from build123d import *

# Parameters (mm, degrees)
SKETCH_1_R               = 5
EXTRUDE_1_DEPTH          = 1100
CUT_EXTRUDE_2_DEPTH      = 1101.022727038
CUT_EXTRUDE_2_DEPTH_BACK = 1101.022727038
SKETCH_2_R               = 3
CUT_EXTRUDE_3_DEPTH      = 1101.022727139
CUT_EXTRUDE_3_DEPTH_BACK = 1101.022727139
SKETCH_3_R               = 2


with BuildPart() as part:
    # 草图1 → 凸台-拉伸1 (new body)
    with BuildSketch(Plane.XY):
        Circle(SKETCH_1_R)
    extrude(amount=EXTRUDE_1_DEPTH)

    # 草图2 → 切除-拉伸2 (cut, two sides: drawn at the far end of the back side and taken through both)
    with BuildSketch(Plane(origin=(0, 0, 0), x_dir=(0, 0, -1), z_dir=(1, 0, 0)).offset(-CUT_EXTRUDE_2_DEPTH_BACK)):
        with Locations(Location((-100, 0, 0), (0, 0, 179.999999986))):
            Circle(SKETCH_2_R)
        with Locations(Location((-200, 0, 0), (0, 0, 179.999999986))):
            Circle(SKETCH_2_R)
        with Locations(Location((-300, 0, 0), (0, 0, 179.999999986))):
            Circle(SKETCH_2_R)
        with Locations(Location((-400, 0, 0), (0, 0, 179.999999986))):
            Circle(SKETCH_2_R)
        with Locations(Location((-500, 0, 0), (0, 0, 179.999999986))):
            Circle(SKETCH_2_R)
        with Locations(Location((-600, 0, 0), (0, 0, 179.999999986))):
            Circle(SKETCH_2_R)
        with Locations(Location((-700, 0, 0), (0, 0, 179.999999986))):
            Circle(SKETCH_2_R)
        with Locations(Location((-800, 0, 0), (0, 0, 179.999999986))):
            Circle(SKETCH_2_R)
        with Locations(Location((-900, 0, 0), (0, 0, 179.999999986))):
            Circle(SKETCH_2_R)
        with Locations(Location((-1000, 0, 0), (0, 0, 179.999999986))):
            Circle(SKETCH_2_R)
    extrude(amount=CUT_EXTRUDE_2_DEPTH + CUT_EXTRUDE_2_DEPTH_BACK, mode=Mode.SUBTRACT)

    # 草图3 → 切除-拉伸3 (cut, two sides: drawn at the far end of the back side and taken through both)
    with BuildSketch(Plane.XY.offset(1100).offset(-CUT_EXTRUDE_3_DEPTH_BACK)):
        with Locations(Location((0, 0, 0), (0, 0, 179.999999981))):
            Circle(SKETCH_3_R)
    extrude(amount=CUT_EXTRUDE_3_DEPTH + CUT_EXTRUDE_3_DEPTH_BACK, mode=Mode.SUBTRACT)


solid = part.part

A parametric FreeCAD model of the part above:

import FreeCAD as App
import Part
import Sketcher

V = App.Vector
Q = App.Units.Quantity

doc = App.newDocument("Part")
body = doc.addObject("PartDesign::Body", "Body")

sketch1 = body.newObject("Sketcher::SketchObject", "Sketch")
sketch1.AttachmentSupport = (doc.getObject("XY_Plane"), [""])
sketch1.MapMode = "FlatFace"
sketch1.addGeometry(Part.Circle(V(0, 0, 0), V(0, 0, 1), 5), False)
sketch1.addConstraint([
    Sketcher.Constraint("Coincident", 0, 3, -1, 1),
    Sketcher.Constraint("Diameter", 0, Q("10 mm")),
])
pad1 = body.newObject("PartDesign::Pad", "Pad")
pad1.Profile = sketch1
pad1.Length = 1100

sketch2 = body.newObject("Sketcher::SketchObject", "Sketch001")
sketch2.AttachmentSupport = (doc.getObject("YZ_Plane"), [""])
sketch2.MapMode = "FlatFace"
sketch2.addGeometry([
    Part.Circle(V(0, 100, 0), V(0, 0, 1), 3),
    Part.Circle(V(0, 200, 0), V(0, 0, 1), 3),
    Part.Circle(V(0, 300, 0), V(0, 0, 1), 3),
    Part.Circle(V(0, 400, 0), V(0, 0, 1), 3),
    Part.Circle(V(0, 500, 0), V(0, 0, 1), 3),
    Part.Circle(V(0, 600, 0), V(0, 0, 1), 3),
    Part.Circle(V(0, 700, 0), V(0, 0, 1), 3),
    Part.Circle(V(0, 800, 0), V(0, 0, 1), 3),
    Part.Circle(V(0, 900, 0), V(0, 0, 1), 3),
    Part.Circle(V(0, 1000, 0), V(0, 0, 1), 3),
], False)
sketch2.addConstraint([
    Sketcher.Constraint("Equal", 0, 1),
    Sketcher.Constraint("Equal", 1, 2),
    Sketcher.Constraint("Equal", 2, 3),
    Sketcher.Constraint("Equal", 3, 4),
    Sketcher.Constraint("Equal", 4, 5),
    Sketcher.Constraint("Equal", 5, 6),
    Sketcher.Constraint("Equal", 6, 7),
    Sketcher.Constraint("Equal", 7, 8),
    Sketcher.Constraint("Equal", 8, 9),
    Sketcher.Constraint("PointOnObject", 0, 3, -2),
    Sketcher.Constraint("PointOnObject", 1, 3, -2),
    Sketcher.Constraint("PointOnObject", 2, 3, -2),
    Sketcher.Constraint("PointOnObject", 3, 3, -2),
    Sketcher.Constraint("PointOnObject", 4, 3, -2),
    Sketcher.Constraint("PointOnObject", 5, 3, -2),
    Sketcher.Constraint("PointOnObject", 6, 3, -2),
    Sketcher.Constraint("PointOnObject", 7, 3, -2),
    Sketcher.Constraint("PointOnObject", 8, 3, -2),
    Sketcher.Constraint("PointOnObject", 9, 3, -2),
    Sketcher.Constraint("Diameter", 0, Q("6 mm")),
    Sketcher.Constraint("DistanceY", -1, 1, 0, 3, Q("100 mm")),
    Sketcher.Constraint("DistanceY", -1, 1, 1, 3, Q("200 mm")),
    Sketcher.Constraint("DistanceY", -1, 1, 2, 3, Q("300 mm")),
    Sketcher.Constraint("DistanceY", -1, 1, 3, 3, Q("400 mm")),
    Sketcher.Constraint("DistanceY", -1, 1, 4, 3, Q("500 mm")),
    Sketcher.Constraint("DistanceY", -1, 1, 5, 3, Q("600 mm")),
    Sketcher.Constraint("DistanceY", -1, 1, 6, 3, Q("700 mm")),
    Sketcher.Constraint("DistanceY", -1, 1, 7, 3, Q("800 mm")),
    Sketcher.Constraint("DistanceY", -1, 1, 8, 3, Q("900 mm")),
    Sketcher.Constraint("DistanceY", -1, 1, 9, 3, Q("1000 mm")),
])
pocket1 = body.newObject("PartDesign::Pocket", "Pocket")
pocket1.Profile = sketch2
pocket1.Type = "ThroughAll"
pocket1.Midplane = True

sketch3 = body.newObject("Sketcher::SketchObject", "Sketch002")
sketch3.AttachmentSupport = (doc.getObject("XY_Plane"), [""])
sketch3.MapMode = "FlatFace"
sketch3.AttachmentOffset = App.Placement(V(0, 0, 1100), App.Rotation())
sketch3.addGeometry(Part.Circle(V(0, 0, 0), V(0, 0, 1), 2), False)
sketch3.addConstraint([
    Sketcher.Constraint("Coincident", 0, 3, -1, 1),
    Sketcher.Constraint("Diameter", 0, Q("4 mm")),
])
pocket2 = body.newObject("PartDesign::Pocket", "Pocket001")
pocket2.Profile = sketch3
pocket2.Type = "ThroughAll"
pocket2.Midplane = True

doc.recompute()
